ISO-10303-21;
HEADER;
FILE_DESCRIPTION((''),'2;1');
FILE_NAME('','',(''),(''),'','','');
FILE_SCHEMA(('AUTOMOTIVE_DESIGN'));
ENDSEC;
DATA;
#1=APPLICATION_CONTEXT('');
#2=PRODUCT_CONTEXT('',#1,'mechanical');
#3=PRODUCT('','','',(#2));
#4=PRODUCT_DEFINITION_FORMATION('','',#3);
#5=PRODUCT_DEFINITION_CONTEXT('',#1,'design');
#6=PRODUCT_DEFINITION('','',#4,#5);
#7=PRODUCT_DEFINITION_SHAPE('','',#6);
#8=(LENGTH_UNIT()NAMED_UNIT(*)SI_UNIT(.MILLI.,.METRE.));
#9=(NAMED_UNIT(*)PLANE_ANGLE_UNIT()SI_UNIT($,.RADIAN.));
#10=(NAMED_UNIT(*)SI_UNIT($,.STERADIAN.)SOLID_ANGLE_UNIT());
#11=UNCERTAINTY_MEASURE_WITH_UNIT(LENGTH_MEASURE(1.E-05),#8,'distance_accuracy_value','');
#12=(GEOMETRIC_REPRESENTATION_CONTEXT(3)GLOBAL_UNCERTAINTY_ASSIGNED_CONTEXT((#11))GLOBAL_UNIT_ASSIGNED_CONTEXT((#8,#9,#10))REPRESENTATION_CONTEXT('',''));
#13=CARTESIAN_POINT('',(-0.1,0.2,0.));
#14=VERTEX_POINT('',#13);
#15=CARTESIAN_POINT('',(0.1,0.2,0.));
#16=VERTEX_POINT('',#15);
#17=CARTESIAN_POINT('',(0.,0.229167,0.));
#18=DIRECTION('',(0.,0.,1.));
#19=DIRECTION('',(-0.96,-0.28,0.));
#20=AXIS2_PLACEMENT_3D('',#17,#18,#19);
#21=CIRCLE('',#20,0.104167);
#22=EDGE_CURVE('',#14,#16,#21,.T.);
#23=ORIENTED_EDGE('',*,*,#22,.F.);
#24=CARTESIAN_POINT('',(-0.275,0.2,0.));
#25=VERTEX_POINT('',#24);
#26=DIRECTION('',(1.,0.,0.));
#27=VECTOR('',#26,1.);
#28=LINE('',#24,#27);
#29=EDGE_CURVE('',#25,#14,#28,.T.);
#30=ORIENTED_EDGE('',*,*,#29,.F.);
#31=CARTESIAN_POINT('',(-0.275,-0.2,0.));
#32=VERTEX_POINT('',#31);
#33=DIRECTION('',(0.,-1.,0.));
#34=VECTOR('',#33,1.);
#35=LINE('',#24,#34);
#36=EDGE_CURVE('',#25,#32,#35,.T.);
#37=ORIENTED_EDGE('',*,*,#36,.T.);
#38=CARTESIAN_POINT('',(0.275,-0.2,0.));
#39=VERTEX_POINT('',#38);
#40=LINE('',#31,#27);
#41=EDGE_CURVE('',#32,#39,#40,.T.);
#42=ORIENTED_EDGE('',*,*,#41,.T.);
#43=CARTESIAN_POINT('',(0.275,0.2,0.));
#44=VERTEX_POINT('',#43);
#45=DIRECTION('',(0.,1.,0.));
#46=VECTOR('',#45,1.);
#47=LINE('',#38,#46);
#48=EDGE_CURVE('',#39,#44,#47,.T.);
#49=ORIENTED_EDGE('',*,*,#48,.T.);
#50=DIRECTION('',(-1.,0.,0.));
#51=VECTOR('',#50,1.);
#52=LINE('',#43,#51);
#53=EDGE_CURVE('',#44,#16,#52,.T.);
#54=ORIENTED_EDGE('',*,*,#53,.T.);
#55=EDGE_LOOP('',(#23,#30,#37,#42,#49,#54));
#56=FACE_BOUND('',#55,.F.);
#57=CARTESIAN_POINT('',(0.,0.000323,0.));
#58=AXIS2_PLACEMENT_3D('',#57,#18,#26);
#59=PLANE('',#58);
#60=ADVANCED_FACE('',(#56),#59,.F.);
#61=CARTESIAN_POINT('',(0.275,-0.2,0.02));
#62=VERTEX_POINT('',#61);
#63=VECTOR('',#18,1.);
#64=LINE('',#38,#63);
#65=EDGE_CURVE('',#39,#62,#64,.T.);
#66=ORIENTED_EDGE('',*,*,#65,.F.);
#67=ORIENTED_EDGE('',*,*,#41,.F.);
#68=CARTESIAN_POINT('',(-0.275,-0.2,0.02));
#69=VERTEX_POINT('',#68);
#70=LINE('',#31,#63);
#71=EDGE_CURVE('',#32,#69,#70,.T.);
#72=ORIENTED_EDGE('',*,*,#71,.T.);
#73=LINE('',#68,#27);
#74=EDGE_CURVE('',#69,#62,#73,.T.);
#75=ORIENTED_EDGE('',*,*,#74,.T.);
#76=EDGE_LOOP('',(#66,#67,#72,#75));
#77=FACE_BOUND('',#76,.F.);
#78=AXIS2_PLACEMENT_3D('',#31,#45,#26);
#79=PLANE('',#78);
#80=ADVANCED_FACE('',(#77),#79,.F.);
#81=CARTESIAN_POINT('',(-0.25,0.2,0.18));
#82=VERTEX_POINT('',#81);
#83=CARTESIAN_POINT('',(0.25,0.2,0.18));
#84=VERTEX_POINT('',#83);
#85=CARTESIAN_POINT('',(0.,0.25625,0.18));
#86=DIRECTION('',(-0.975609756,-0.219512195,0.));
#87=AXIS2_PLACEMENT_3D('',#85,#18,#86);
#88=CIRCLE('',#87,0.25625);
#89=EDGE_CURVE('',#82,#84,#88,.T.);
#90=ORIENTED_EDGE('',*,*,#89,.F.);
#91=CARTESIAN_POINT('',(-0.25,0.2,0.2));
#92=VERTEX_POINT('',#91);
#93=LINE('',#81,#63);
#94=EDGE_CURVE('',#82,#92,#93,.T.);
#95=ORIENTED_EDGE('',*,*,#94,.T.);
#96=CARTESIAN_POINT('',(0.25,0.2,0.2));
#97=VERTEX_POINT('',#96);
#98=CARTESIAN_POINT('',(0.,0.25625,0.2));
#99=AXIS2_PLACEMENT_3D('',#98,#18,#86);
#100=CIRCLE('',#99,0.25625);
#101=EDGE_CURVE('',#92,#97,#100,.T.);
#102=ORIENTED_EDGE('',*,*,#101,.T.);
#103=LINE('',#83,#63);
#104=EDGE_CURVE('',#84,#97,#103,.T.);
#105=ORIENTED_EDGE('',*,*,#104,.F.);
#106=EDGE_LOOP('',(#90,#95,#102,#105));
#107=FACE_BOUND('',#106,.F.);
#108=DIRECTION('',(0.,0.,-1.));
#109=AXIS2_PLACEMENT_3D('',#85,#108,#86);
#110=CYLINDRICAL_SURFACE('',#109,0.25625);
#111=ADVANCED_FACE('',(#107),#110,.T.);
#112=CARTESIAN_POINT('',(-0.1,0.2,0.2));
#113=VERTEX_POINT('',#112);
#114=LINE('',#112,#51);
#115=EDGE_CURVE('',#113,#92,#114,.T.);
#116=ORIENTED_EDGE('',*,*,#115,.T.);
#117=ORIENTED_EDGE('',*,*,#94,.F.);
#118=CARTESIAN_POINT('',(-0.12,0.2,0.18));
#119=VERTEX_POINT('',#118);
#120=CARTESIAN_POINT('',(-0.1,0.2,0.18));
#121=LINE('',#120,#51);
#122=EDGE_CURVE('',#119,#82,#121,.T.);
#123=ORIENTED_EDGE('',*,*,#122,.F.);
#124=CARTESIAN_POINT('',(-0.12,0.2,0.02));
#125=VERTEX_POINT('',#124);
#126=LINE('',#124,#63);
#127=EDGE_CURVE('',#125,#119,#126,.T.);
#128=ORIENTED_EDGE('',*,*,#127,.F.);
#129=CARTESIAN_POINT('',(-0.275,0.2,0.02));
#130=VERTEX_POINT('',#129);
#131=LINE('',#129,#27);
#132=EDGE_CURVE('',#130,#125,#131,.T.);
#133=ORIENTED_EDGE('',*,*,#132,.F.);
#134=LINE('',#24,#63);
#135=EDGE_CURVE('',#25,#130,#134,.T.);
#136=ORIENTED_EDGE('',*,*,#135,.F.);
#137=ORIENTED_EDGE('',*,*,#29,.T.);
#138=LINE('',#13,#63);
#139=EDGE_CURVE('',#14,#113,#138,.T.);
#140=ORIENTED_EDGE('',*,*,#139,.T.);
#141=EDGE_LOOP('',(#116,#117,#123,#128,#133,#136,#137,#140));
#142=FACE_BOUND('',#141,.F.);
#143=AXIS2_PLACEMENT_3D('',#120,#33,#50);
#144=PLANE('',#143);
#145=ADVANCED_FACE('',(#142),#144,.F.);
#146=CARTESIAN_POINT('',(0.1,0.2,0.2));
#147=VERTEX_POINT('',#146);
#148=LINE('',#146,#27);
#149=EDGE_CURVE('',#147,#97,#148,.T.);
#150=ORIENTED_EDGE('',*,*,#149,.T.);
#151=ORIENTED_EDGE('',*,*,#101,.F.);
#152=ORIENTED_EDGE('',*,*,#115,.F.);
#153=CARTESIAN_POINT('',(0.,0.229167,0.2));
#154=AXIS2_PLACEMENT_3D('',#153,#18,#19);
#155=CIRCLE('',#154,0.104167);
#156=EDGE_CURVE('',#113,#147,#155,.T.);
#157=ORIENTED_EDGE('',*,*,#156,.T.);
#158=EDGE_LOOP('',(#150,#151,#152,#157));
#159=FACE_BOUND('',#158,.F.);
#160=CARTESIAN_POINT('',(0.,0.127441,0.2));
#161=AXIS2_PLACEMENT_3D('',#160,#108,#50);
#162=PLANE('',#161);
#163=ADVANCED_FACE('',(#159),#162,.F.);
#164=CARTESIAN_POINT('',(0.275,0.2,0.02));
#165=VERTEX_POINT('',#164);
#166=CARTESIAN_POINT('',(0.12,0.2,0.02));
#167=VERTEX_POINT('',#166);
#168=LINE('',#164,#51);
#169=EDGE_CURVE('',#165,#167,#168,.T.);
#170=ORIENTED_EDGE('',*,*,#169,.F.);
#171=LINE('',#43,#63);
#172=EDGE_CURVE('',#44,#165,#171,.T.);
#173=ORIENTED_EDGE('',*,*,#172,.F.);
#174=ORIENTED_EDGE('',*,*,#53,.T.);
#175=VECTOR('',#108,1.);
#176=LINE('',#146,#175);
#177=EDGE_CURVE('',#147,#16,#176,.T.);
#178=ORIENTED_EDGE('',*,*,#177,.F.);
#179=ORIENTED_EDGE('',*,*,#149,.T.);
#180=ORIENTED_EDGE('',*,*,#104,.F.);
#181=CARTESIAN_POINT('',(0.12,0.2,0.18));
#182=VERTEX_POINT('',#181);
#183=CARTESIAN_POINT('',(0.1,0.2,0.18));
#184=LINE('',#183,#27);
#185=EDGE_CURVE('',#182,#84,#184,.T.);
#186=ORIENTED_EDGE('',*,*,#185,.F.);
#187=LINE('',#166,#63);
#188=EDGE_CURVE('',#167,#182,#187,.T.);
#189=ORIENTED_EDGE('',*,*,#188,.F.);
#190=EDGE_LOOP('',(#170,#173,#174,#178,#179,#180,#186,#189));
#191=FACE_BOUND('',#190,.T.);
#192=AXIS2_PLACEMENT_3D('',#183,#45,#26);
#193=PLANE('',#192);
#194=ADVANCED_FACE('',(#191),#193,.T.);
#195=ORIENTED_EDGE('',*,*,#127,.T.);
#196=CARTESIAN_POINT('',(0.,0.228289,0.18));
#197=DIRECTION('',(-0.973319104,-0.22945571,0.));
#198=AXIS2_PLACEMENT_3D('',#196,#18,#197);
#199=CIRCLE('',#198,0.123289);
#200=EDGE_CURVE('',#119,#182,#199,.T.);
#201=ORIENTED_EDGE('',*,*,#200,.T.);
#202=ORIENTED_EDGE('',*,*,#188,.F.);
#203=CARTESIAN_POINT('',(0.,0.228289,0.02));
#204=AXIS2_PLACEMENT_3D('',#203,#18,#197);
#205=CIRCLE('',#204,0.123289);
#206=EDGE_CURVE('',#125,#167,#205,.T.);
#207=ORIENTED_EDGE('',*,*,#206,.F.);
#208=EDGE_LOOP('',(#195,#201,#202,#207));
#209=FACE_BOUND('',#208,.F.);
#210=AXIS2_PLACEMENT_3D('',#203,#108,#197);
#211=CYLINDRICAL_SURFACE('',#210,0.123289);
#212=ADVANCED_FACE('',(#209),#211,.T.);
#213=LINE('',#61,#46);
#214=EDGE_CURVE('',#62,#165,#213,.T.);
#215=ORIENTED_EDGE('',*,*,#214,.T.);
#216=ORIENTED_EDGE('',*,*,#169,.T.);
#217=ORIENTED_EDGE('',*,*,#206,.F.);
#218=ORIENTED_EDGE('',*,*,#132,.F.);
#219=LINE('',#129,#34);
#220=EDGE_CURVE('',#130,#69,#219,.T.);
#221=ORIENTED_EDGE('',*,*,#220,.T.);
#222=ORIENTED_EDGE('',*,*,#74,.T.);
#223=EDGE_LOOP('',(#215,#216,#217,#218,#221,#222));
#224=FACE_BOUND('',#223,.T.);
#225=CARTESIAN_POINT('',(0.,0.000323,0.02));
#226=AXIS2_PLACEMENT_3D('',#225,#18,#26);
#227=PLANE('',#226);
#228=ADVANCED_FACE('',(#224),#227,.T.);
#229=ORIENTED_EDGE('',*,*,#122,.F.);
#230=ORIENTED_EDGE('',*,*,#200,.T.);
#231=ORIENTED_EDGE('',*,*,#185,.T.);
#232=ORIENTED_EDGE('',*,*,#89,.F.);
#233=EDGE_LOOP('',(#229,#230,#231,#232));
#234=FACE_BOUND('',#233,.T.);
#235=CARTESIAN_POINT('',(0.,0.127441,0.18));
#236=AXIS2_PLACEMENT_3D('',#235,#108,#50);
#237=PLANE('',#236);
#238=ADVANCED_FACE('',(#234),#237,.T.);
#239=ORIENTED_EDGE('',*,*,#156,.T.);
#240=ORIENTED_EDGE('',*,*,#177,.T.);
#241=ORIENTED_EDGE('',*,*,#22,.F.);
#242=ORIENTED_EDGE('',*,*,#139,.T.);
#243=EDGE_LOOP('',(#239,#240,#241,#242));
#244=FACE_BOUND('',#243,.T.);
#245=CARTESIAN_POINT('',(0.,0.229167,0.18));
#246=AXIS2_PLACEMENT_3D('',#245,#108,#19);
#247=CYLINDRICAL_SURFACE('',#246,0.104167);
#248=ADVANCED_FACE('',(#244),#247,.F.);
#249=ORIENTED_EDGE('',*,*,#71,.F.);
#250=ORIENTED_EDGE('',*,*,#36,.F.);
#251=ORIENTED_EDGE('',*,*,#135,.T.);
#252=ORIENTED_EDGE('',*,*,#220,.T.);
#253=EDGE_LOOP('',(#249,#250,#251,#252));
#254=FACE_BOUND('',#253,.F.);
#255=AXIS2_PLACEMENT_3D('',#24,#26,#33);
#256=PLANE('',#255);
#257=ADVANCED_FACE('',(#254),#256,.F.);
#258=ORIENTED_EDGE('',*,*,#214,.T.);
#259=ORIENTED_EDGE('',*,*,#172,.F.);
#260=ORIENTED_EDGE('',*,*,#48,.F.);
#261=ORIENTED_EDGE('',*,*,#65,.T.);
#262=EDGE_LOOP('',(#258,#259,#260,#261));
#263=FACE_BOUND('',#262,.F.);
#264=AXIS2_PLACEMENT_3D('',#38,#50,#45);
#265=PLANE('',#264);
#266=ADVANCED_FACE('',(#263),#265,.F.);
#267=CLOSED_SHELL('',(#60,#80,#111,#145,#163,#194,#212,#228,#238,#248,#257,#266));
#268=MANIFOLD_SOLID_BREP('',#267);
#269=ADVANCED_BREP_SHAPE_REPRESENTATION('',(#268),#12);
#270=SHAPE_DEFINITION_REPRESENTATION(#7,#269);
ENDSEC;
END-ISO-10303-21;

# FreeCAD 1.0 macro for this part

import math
import FreeCAD as App
import Part
import Sketcher

V = App.Vector
Q = App.Units.Quantity

doc = App.newDocument("Part")
body = doc.addObject("PartDesign::Body", "Body")

# Sketch on XY plane
sketch1 = body.newObject("Sketcher::SketchObject", "Sketch")
sketch1.AttachmentSupport = (doc.getObject("XY_Plane"), [""])
sketch1.MapMode = "FlatFace"
sketch1.addGeometry([
    Part.LineSegment(V(-0.28, 0.2, 0), V(-0.28, -0.2, 0)),  # 0
    Part.LineSegment(V(-0.28, -0.2, 0), V(0.28, -0.2, 0)),  # 1
    Part.LineSegment(V(0.28, -0.2, 0), V(0.28, 0.2, 0)),  # 2
    Part.LineSegment(V(0.28, 0.2, 0), V(0.1, 0.2, 0)),  # 3
    Part.ArcOfCircle(Part.Circle(V(0, 0.23, 0), V(0, 0, 1), 0.1), math.radians(-164), math.radians(-16)),  # 4
    Part.LineSegment(V(-0.1, 0.2, 0), V(-0.28, 0.2, 0)),  # 5
], False)
sketch1.addConstraint([
    Sketcher.Constraint("Coincident", 0, 2, 1, 1),
    Sketcher.Constraint("Coincident", 1, 2, 2, 1),
    Sketcher.Constraint("Coincident", 2, 2, 3, 1),
    Sketcher.Constraint("Coincident", 3, 2, 4, 2),
    Sketcher.Constraint("Coincident", 4, 1, 5, 1),
    Sketcher.Constraint("Coincident", 5, 2, 0, 1),
    Sketcher.Constraint("Vertical", 0),
    Sketcher.Constraint("Horizontal", 1),
    Sketcher.Constraint("Vertical", 2),
    Sketcher.Constraint("Horizontal", 3),
    Sketcher.Constraint("Horizontal", 5),
    Sketcher.Constraint("Symmetric", 0, 2, 2, 2, -1, 1),
    Sketcher.Constraint("Symmetric", 3, 2, 4, 1, -2),
    Sketcher.Constraint("DistanceY", 0, 2, 0, 1, Q("0.4 mm")),
    Sketcher.Constraint("DistanceX", 1, 1, 1, 2, Q("0.55 mm")),
    Sketcher.Constraint("DistanceX", -1, 1, 3, 2, Q("0.1 mm")),
    Sketcher.Constraint("Radius", 4, Q("0.104167 mm")),
])
pad1 = body.newObject("PartDesign::Pad", "Pad")
pad1.Profile = sketch1
pad1.Length = 0.02

# Sketch on XY plane
sketch2 = body.newObject("Sketcher::SketchObject", "Sketch001")
sketch2.AttachmentSupport = (doc.getObject("XY_Plane"), [""])
sketch2.MapMode = "FlatFace"
sketch2.AttachmentOffset = App.Placement(V(0, 0, 0.02), App.Rotation())
sketch2.addGeometry([
    Part.LineSegment(V(-0.1, 0.2, 0), V(-0.12, 0.2, 0)),
    Part.ArcOfCircle(Part.Circle(V(0, 0.228, 0), V(0, 0, 1), 0.123), math.radians(-167), math.radians(-13)),
    Part.LineSegment(V(0.12, 0.2, 0), V(0.1, 0.2, 0)),
    Part.ArcOfCircle(Part.Circle(V(0, 0.229, 0), V(0, 0, 1), 0.104), math.radians(-164), math.radians(-16)),
], False)
sketch2.addConstraint([
    Sketcher.Constraint("Coincident", 0, 2, 1, 1),
    Sketcher.Constraint("Coincident", 1, 2, 2, 1),
    Sketcher.Constraint("Coincident", 2, 2, 3, 2),
    Sketcher.Constraint("Coincident", 3, 1, 0, 1),
    Sketcher.Constraint("Horizontal", 0),
    Sketcher.Constraint("Horizontal", 2),
    Sketcher.Constraint("Symmetric", 0, 2, 1, 2, -2),
    Sketcher.Constraint("PointOnObject", 3, 3, -2),
    Sketcher.Constraint("DistanceX", 0, 2, 0, 1, Q("0.02 mm")),
    Sketcher.Constraint("DistanceY", -1, 1, 0, 2, Q("0.2 mm")),
    Sketcher.Constraint("DistanceX", -1, 1, 2, 2, Q("0.1 mm")),
    Sketcher.Constraint("Radius", 1, Q("0.123289 mm")),
    Sketcher.Constraint("Radius", 3, Q("0.104167 mm")),
])
pad2 = body.newObject("PartDesign::Pad", "Pad001")
pad2.Profile = sketch2
pad2.Length = 0.16

# Sketch on XY plane
sketch3 = body.newObject("Sketcher::SketchObject", "Sketch002")
sketch3.AttachmentSupport = (doc.getObject("XY_Plane"), [""])
sketch3.MapMode = "FlatFace"
sketch3.AttachmentOffset = App.Placement(V(0, 0, 0.18), App.Rotation())
sketch3.addGeometry([
    Part.ArcOfCircle(Part.Circle(V(0, 0.23, 0), V(0, 0, 1), 0.1), math.radians(-164), math.radians(-16)),
    Part.LineSegment(V(-0.1, 0.2, 0), V(-0.25, 0.2, 0)),
    Part.ArcOfCircle(Part.Circle(V(0, 0.26, 0), V(0, 0, 1), 0.26), math.radians(-167), math.radians(-13)),
    Part.LineSegment(V(0.25, 0.2, 0), V(0.1, 0.2, 0)),
], False)
sketch3.addConstraint([
    Sketcher.Constraint("Coincident", 0, 1, 1, 1),
    Sketcher.Constraint("Coincident", 1, 2, 2, 1),
    Sketcher.Constraint("Coincident", 2, 2, 3, 1),
    Sketcher.Constraint("Coincident", 3, 2, 0, 2),
    Sketcher.Constraint("Horizontal", 1),
    Sketcher.Constraint("Horizontal", 3),
    Sketcher.Constraint("Symmetric", 1, 2, 2, 2, -2),
    Sketcher.Constraint("PointOnObject", 0, 3, -2),
    Sketcher.Constraint("DistanceX", 1, 2, 1, 1, Q("0.15 mm")),
    Sketcher.Constraint("DistanceX", 0, 1, -1, 1, Q("0.1 mm")),
    Sketcher.Constraint("DistanceY", -1, 1, 0, 1, Q("0.2 mm")),
    Sketcher.Constraint("Radius", 2, Q("0.25625 mm")),
    Sketcher.Constraint("Radius", 0, Q("0.104167 mm")),
])
pad3 = body.newObject("PartDesign::Pad", "Pad002")
pad3.Profile = sketch3
pad3.Length = 0.02

doc.recompute()
